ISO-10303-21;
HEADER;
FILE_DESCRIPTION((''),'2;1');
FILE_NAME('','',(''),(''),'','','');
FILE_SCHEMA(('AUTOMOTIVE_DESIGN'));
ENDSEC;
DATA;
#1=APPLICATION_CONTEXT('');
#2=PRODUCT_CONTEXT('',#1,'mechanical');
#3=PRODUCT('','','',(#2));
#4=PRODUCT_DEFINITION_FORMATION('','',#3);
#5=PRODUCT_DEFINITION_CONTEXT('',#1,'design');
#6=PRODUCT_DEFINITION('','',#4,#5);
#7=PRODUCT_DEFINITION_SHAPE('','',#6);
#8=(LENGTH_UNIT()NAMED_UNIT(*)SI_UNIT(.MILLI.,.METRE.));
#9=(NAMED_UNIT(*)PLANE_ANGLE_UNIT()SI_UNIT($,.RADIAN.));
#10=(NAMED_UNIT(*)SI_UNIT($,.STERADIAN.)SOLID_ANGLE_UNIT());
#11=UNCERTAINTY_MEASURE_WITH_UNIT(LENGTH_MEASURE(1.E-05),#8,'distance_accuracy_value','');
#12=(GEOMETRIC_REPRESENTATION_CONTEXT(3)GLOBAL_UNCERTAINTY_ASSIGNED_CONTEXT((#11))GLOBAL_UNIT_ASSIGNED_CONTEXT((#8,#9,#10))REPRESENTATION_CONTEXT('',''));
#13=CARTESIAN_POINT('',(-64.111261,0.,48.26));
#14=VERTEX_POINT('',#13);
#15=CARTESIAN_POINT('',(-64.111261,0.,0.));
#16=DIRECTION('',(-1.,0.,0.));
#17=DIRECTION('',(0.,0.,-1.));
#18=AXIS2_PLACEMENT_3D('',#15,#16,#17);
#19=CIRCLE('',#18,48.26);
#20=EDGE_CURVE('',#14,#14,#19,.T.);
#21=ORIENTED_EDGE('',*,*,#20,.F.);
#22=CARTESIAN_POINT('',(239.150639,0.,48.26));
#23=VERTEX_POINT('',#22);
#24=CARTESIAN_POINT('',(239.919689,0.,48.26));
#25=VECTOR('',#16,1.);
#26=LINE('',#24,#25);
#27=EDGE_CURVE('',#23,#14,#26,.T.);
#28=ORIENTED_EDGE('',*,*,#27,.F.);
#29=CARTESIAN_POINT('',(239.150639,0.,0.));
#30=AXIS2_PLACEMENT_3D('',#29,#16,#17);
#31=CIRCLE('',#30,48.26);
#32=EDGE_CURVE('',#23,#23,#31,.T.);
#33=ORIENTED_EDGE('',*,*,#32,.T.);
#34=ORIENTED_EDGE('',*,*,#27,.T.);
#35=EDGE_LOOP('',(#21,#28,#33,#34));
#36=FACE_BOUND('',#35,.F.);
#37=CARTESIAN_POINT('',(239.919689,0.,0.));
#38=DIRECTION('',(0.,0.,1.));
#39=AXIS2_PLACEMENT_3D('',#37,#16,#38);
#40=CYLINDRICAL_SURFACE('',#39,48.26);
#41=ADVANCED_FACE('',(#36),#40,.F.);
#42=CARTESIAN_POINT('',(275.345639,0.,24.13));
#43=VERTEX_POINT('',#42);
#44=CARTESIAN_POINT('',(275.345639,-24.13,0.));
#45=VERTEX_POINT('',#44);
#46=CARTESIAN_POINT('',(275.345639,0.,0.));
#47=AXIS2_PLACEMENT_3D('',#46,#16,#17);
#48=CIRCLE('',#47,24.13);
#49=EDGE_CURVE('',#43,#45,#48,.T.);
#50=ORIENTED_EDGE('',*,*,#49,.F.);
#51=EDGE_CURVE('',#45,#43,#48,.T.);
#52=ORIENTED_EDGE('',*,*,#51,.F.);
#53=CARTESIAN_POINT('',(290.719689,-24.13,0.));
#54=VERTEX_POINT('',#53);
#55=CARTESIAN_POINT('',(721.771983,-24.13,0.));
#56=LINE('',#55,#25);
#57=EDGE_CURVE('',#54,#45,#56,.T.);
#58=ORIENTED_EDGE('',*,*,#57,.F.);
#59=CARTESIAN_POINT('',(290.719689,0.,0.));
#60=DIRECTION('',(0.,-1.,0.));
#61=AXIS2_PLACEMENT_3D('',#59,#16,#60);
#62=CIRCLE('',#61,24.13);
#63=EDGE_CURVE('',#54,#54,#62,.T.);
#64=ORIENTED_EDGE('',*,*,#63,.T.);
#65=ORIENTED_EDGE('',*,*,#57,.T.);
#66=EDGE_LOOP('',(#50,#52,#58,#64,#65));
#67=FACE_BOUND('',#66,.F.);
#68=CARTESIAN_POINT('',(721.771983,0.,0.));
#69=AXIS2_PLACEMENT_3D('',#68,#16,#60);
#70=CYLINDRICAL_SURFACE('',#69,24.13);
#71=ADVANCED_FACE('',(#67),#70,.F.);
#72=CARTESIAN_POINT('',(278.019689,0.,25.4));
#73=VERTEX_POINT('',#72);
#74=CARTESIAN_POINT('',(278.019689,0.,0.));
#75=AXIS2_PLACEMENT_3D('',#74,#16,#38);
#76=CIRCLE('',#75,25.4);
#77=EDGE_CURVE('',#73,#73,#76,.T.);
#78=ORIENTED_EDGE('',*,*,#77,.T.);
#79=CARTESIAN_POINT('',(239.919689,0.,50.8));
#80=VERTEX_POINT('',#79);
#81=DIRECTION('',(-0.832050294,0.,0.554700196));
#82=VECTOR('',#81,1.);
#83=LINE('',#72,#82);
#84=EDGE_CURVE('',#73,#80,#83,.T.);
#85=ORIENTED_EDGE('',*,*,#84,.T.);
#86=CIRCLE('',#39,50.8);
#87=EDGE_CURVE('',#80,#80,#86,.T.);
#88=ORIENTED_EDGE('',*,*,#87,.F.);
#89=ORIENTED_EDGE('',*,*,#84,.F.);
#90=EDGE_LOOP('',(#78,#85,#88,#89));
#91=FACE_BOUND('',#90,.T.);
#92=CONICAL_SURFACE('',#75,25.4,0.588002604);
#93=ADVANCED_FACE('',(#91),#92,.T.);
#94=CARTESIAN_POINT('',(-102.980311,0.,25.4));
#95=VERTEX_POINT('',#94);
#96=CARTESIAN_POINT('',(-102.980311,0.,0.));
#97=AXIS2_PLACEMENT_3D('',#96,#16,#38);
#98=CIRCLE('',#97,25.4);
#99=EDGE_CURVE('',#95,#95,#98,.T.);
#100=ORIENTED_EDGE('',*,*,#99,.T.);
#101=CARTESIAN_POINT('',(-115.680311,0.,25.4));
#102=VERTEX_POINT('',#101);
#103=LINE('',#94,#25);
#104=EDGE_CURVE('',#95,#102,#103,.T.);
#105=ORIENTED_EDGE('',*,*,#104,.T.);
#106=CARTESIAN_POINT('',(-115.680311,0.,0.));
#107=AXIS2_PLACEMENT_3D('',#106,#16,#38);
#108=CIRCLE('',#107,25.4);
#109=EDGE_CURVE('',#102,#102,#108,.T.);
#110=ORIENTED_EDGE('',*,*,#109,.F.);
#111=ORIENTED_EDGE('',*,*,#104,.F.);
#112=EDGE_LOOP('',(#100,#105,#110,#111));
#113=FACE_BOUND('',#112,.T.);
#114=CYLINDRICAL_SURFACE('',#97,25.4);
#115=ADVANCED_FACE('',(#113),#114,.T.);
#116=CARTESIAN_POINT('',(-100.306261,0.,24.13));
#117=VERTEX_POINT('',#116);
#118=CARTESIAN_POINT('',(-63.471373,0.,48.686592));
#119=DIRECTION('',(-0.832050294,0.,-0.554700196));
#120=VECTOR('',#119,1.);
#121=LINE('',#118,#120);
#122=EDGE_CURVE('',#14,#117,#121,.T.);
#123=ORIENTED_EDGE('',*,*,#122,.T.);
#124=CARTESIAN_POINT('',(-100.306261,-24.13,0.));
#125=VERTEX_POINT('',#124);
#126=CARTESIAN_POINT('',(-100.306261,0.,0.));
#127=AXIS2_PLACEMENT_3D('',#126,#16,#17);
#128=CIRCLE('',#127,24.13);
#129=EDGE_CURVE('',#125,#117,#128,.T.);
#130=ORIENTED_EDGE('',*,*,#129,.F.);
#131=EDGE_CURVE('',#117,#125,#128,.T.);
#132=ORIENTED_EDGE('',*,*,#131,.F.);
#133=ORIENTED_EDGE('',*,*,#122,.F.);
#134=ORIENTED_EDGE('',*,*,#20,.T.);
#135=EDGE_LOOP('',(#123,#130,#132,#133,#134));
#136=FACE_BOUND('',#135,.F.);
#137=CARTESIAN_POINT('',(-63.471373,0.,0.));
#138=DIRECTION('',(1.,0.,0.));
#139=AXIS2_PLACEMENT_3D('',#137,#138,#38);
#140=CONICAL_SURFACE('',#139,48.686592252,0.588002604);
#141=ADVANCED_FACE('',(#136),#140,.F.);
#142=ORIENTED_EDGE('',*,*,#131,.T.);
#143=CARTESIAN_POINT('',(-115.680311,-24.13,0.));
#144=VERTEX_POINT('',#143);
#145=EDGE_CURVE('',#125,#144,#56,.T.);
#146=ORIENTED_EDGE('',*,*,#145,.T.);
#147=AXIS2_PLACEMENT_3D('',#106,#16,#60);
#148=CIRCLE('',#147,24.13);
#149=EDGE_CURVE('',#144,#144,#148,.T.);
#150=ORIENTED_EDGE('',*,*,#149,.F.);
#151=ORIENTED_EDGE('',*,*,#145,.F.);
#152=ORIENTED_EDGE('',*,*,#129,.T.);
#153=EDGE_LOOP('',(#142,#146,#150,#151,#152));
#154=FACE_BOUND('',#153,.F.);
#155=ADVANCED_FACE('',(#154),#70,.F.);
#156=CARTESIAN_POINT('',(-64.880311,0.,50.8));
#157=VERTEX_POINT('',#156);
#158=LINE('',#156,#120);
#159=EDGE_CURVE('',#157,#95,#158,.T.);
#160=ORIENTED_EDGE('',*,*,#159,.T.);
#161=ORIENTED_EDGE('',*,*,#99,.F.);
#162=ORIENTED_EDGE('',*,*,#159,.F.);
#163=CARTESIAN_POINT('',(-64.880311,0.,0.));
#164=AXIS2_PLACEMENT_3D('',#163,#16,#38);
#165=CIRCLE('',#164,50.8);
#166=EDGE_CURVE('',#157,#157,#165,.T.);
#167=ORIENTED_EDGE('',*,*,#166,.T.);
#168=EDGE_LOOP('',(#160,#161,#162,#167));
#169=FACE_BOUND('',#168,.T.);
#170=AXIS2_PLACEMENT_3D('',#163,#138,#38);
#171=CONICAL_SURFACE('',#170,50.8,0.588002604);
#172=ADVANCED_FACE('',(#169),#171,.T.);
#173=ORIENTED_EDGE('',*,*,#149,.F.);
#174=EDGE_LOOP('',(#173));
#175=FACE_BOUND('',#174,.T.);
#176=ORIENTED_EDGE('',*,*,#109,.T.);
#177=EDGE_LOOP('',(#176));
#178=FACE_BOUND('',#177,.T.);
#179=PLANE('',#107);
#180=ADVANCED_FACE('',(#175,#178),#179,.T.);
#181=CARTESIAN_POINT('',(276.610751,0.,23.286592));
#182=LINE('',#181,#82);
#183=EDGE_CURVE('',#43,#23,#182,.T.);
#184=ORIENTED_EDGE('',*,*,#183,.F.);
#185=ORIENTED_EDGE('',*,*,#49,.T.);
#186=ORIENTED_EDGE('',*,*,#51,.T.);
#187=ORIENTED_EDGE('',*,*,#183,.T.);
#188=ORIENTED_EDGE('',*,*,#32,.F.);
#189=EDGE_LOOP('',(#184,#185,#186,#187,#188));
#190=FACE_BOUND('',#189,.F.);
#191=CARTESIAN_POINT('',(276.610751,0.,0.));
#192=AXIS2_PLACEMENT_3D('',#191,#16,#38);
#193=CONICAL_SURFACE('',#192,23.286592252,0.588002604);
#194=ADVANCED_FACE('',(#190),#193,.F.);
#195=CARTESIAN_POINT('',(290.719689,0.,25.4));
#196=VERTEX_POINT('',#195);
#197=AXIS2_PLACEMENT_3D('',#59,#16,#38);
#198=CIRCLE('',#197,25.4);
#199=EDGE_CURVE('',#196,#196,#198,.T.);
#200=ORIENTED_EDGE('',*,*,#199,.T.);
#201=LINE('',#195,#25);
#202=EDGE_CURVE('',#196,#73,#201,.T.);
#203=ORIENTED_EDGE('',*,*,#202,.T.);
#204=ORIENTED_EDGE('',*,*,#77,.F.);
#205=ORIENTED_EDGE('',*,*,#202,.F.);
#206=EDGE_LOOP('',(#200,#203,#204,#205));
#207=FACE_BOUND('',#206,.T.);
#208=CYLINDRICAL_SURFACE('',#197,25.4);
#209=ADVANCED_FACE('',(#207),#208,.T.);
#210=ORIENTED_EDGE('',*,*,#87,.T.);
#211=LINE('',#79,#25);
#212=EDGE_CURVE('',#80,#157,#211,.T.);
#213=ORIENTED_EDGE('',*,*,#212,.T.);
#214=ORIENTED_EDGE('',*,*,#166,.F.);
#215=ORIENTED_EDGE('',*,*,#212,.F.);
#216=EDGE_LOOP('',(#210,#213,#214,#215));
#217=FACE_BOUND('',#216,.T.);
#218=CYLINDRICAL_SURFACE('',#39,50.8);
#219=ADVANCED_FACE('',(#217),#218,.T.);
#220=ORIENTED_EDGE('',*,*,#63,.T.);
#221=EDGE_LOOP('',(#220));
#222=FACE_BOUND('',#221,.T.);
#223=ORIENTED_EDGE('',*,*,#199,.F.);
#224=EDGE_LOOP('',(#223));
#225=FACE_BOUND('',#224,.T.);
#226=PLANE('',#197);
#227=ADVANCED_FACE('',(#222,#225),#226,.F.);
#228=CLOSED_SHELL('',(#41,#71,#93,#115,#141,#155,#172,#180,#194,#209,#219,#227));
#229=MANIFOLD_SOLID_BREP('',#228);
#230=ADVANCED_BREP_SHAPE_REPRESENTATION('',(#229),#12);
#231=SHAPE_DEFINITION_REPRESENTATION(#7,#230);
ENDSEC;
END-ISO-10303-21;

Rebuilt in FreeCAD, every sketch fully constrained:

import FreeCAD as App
import Part
import Sketcher

V = App.Vector
Q = App.Units.Quantity


def faces_at(feature, points):
    """Names of the faces that lie closest to the given points."""
    faces = feature.Shape.Faces
    near = lambda p: min(range(len(faces)), key=lambda i: faces[i].distToShape(Part.Vertex(*p))[0])
    return sorted({f"Face{near(p) + 1}" for p in points})


def add_polygon(sketch, points):
    """Adds a closed chain of lines whose ends are joined by coincident constraints."""
    first, n = sketch.GeometryCount, len(points)
    for a, b in zip(points, points[1:] + points[:1]):
        sketch.addGeometry(Part.LineSegment(App.Vector(*a, 0), App.Vector(*b, 0)), False)
    for i in range(n):
        sketch.addConstraint(Sketcher.Constraint("Coincident", first + i, 2, first + (i + 1) % n, 1))

doc = App.newDocument("Part")
body = doc.addObject("PartDesign::Body", "Body")

# Sketch on XZ plane
sketch1 = body.newObject("Sketcher::SketchObject", "Sketch")
sketch1.AttachmentSupport = (doc.getObject("XZ_Plane"), [""])
sketch1.MapMode = "FlatFace"
add_polygon(sketch1, [(-116, 25), (-116, 0), (291, 0), (291, 25), (278, 25), (240, 51), (-65, 51), (-103, 25)])  # lines 0-7
sketch1.addConstraint([
    Sketcher.Constraint("Vertical", 0),
    Sketcher.Constraint("Horizontal", 1),
    Sketcher.Constraint("Vertical", 2),
    Sketcher.Constraint("Horizontal", 3),
    Sketcher.Constraint("Horizontal", 5),
    Sketcher.Constraint("Horizontal", 7),
    Sketcher.Constraint("PointOnObject", 0, 2, -1),
    Sketcher.Constraint("Horizontal", 3, 2, 6, 2),
    Sketcher.Constraint("Equal", 3, 7),
    Sketcher.Constraint("Equal", 4, 6),
    Sketcher.Constraint("DistanceX", 1, 1, 1, 2, Q("16 in")),
    Sketcher.Constraint("DistanceX", 5, 2, 5, 1, Q("12 in")),
    Sketcher.Constraint("DistanceY", 0, 2, 0, 1, Q("1 in")),
    Sketcher.Constraint("DistanceX", 3, 2, 3, 1, Q("0.5 in")),
    Sketcher.Constraint("DistanceY", -1, 1, 4, 2, Q("2 in")),
    Sketcher.Constraint("DistanceX", 0, 2, -1, 1, Q("115.680311 mm")),
])
revolution = body.newObject("PartDesign::Revolution", "Revolution")
revolution.Profile = sketch1
revolution.ReferenceAxis = (sketch1, ["H_Axis"])
revolution.Angle = 360
doc.recompute()

thickness = body.newObject("PartDesign::Thickness", "Thickness")
thickness.Base = (revolution, faces_at(revolution, [(-115.68, 0, 0)]))
thickness.Value = Q("0.1 in")
thickness.Reversed = True
thickness.Join = "Arc"

# Sketch on YZ plane
sketch2 = body.newObject("Sketcher::SketchObject", "Sketch001")
sketch2.AttachmentSupport = (doc.getObject("YZ_Plane"), [""])
sketch2.MapMode = "FlatFace"
sketch2.AttachmentOffset = App.Placement(V(0, 0, 290.719689), App.Rotation())
sketch2.addGeometry(Part.Circle(V(0, 0, 0), V(0, 0, 1), 24), False)
sketch2.addConstraint([
    Sketcher.Constraint("Coincident", 0, 3, -1, 1),
    Sketcher.Constraint("Diameter", 0, Q("1.9 in")),
])
doc.recompute()
hole = body.newObject("PartDesign::Hole", "Hole")
hole.Profile = sketch2
hole.ThreadType = "None"
hole.Diameter = Q("1.9 in")
hole.DepthType = "ThroughAll"

doc.recompute()
